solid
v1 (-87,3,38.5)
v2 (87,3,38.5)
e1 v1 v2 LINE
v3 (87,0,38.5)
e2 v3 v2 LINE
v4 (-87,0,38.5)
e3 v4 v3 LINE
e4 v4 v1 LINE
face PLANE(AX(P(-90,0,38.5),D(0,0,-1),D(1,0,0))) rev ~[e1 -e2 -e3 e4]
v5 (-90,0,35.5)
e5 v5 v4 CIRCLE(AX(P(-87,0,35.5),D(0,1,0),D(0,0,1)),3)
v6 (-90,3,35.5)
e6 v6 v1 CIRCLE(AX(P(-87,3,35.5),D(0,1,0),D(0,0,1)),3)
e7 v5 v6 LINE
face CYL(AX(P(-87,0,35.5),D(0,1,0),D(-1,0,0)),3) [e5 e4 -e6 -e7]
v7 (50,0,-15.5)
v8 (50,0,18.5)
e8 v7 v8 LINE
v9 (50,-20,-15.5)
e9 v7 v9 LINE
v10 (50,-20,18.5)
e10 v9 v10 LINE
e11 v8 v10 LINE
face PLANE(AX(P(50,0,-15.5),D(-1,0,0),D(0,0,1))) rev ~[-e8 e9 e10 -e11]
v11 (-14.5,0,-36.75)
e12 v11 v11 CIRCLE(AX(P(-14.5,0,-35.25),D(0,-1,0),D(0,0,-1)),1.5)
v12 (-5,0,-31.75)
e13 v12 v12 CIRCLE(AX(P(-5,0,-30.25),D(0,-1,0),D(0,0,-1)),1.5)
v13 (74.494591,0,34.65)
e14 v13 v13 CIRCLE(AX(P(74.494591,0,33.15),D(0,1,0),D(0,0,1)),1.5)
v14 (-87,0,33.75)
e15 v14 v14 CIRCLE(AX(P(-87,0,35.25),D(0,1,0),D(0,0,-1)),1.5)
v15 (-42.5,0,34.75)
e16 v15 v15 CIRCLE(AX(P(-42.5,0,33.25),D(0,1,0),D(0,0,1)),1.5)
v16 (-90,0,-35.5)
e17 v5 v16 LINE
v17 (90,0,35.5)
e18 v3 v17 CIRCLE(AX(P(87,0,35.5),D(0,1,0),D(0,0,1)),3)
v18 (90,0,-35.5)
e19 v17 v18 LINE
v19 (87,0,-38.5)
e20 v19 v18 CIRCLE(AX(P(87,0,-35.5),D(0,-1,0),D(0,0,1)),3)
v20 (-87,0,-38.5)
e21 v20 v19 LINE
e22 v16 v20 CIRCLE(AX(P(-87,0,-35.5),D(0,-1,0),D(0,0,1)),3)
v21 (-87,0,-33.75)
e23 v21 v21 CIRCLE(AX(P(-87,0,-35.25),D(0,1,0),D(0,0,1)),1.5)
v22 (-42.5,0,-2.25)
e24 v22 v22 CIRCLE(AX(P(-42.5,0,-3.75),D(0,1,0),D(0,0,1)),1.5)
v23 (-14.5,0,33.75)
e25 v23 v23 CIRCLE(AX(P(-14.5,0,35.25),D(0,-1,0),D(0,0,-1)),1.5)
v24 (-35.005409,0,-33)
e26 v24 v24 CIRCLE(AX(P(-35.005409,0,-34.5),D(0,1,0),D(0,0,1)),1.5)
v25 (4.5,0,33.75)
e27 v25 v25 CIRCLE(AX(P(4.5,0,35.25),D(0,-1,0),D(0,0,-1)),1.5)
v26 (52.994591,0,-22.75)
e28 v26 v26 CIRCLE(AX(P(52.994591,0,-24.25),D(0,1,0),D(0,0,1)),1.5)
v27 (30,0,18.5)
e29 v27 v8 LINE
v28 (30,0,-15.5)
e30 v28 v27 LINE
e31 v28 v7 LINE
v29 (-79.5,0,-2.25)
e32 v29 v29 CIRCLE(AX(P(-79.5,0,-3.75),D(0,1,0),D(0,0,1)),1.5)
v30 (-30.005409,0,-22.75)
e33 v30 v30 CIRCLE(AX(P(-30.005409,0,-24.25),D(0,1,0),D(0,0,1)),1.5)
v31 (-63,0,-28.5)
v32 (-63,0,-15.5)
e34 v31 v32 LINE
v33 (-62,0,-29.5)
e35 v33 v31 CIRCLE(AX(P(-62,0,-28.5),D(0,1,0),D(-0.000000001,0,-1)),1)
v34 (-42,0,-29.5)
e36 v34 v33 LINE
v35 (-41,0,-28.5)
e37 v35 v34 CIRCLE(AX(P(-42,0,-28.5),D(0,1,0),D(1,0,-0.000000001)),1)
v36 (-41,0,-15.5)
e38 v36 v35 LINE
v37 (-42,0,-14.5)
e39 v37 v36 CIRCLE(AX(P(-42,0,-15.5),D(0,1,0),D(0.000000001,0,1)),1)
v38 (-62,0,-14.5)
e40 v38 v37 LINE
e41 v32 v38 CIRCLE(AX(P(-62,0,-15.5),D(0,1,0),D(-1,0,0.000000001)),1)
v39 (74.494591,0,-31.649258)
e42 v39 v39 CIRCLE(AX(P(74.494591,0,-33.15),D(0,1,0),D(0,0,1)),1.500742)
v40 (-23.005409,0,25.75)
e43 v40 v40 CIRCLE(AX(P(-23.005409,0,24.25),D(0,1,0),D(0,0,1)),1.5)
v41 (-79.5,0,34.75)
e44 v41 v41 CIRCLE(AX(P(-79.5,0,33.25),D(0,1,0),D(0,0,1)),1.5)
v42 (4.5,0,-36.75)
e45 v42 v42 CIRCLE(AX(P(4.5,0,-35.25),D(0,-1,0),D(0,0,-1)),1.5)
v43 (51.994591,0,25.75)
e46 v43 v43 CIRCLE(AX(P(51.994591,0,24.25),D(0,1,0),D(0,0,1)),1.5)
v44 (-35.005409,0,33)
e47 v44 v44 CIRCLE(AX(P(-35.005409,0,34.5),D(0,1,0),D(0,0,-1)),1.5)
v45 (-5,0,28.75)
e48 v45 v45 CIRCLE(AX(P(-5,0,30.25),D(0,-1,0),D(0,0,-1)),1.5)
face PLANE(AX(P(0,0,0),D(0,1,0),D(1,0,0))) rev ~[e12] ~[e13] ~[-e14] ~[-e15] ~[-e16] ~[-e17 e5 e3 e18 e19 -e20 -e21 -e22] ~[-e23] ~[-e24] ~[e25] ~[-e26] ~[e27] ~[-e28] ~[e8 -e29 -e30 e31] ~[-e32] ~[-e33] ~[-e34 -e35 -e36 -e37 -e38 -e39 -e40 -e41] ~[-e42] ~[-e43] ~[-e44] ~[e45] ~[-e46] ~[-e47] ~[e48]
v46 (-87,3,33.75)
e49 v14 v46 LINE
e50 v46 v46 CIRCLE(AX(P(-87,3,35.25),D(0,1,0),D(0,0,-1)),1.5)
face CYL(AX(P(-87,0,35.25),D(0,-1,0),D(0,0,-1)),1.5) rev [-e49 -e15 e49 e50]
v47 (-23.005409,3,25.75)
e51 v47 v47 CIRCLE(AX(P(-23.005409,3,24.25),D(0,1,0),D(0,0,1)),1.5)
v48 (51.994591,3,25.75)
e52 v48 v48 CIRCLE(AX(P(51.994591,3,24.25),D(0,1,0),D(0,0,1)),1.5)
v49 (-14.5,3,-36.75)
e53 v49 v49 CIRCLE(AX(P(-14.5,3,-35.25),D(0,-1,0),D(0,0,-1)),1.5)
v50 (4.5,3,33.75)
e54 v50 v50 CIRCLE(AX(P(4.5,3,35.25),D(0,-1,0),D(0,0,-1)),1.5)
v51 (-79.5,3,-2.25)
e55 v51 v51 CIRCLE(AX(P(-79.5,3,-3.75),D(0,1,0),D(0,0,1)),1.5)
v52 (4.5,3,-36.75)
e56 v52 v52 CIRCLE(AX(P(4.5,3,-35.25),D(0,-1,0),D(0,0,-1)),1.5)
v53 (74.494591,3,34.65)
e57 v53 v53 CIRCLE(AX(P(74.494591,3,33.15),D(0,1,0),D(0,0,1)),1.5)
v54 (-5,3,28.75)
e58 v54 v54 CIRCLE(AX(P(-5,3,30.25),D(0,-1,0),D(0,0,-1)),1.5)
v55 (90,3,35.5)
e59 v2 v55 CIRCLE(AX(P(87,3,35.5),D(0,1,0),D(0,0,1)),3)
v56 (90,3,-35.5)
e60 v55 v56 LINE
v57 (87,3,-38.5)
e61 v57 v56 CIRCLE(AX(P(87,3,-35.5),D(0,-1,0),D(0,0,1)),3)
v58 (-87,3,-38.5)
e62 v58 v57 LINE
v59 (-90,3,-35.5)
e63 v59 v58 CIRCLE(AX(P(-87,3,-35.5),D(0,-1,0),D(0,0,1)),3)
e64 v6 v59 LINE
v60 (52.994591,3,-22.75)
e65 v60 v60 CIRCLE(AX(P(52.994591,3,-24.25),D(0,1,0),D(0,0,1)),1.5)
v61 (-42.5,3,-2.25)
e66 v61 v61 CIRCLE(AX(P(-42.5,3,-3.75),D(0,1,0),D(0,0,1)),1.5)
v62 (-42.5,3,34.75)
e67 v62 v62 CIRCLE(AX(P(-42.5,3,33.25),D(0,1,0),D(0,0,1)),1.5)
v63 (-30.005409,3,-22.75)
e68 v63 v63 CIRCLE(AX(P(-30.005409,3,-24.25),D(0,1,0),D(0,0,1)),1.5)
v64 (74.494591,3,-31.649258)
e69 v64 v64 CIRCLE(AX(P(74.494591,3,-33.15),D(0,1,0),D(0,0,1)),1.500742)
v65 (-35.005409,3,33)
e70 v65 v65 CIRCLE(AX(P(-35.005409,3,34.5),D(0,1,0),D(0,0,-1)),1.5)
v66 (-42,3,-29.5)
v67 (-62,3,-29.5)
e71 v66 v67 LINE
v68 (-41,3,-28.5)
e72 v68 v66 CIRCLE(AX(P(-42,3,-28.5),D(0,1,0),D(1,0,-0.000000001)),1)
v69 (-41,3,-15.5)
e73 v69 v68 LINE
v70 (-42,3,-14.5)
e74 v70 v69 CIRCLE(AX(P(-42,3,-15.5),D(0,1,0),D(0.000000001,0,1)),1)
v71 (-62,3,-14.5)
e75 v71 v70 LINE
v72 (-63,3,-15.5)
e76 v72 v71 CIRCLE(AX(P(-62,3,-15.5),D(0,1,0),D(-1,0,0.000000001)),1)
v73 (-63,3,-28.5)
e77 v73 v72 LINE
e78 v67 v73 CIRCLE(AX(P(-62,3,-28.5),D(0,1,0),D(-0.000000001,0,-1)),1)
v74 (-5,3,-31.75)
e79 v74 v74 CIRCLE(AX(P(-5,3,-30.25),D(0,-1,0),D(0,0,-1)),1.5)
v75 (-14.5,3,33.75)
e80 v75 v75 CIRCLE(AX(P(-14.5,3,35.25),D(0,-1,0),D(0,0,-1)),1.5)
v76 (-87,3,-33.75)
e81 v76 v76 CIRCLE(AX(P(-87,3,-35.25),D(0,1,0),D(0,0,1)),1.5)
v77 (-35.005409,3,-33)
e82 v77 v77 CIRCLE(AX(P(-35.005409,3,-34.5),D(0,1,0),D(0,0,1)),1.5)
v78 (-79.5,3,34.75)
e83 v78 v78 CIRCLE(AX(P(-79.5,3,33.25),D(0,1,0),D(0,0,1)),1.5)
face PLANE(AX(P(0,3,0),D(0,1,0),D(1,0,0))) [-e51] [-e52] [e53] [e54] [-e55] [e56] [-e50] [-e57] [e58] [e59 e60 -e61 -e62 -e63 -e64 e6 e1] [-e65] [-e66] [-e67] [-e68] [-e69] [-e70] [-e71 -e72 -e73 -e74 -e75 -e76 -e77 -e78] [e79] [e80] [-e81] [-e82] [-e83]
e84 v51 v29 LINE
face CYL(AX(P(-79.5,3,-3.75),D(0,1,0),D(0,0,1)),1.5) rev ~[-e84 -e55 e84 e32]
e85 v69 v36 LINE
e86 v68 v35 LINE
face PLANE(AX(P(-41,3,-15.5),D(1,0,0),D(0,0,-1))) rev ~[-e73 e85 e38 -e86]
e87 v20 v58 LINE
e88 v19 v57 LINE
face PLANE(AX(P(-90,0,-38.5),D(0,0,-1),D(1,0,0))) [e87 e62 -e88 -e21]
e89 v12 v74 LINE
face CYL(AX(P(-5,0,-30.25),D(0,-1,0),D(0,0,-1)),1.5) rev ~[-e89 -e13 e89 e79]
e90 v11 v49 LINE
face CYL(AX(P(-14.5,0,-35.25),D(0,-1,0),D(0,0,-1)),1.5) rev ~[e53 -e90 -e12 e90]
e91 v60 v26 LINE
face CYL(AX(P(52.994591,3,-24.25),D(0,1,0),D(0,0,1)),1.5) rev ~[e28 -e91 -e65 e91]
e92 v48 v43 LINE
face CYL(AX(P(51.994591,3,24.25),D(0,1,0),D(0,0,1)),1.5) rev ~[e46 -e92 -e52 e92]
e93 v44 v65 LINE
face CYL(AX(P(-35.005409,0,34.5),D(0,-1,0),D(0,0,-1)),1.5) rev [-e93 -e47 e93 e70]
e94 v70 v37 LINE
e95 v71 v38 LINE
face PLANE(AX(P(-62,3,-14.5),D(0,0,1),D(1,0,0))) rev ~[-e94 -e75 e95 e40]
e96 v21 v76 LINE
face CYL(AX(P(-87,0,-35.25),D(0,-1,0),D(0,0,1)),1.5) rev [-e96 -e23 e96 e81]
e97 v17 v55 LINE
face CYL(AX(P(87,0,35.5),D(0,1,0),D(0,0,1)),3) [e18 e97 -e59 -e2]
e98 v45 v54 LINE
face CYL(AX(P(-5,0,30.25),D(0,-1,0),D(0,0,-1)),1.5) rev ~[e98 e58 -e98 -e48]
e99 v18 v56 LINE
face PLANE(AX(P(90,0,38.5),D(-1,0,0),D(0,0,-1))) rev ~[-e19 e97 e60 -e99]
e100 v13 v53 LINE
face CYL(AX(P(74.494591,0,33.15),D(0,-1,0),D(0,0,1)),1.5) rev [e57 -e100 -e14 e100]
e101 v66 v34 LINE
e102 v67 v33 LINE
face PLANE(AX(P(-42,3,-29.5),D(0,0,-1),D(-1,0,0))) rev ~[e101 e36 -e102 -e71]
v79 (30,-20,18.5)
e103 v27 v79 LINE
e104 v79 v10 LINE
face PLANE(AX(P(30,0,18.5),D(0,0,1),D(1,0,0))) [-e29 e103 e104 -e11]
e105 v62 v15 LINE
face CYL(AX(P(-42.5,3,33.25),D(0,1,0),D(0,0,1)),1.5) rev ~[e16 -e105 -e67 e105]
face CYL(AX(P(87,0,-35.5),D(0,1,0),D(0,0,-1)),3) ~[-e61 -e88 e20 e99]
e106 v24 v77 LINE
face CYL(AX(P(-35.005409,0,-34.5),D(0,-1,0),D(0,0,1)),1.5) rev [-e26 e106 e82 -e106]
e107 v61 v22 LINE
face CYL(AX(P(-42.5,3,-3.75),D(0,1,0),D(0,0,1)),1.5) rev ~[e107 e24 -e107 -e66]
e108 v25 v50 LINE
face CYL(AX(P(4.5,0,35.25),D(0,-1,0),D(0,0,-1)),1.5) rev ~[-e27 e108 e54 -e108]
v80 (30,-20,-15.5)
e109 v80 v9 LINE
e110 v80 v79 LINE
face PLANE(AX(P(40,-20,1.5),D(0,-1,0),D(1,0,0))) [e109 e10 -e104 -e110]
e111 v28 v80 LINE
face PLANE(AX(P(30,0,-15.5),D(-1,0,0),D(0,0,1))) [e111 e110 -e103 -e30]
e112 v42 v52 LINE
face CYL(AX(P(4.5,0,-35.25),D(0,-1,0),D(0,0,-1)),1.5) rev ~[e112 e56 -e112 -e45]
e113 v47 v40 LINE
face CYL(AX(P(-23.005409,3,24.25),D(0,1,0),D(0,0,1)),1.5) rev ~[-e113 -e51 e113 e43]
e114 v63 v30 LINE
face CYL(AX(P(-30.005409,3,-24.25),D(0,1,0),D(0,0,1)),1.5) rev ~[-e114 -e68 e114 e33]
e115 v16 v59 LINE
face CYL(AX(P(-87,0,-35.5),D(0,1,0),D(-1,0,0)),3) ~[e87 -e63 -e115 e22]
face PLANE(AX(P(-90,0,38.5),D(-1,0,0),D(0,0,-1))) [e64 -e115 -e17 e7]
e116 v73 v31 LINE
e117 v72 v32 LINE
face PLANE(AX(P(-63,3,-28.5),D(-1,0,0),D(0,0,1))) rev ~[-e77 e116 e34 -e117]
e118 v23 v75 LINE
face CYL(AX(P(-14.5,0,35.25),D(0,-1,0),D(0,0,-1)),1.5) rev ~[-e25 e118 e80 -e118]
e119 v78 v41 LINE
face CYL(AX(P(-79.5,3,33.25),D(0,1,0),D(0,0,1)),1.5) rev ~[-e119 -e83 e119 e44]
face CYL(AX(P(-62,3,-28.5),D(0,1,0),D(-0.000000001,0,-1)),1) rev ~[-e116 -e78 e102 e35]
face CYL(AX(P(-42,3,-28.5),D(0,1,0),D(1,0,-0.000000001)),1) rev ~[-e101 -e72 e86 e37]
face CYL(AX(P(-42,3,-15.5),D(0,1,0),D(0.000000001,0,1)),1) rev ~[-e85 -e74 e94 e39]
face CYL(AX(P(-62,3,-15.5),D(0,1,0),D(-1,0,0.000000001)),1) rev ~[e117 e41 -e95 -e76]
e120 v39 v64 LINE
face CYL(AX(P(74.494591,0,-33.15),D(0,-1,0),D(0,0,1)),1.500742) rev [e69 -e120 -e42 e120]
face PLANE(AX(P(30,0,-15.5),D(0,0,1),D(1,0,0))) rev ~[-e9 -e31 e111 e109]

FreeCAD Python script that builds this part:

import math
import FreeCAD as App
import Part
import Sketcher

V = App.Vector


def edges_at(feature, points):
    """Names of the edges that pass closest to the given points."""
    edges = feature.Shape.Edges
    near = lambda p: min(range(len(edges)), key=lambda i: edges[i].distToShape(Part.Vertex(*p))[0])
    return sorted({f"Edge{near(p) + 1}" for p in points})

doc = App.newDocument("Part")
body = doc.addObject("PartDesign::Body", "Body")

# Sketch on XZ plane
sketch1 = body.newObject("Sketcher::SketchObject", "Sketch")
sketch1.AttachmentSupport = (doc.getObject("XZ_Plane"), [""])
sketch1.MapMode = "FlatFace"
sketch1.addGeometry([
    Part.LineSegment(V(-90, -38.5, 0), V(-90, 38.5, 0)),  # 0
    Part.LineSegment(V(-90, 38.5, 0), V(90, 38.5, 0)),  # 1
    Part.LineSegment(V(90, 38.5, 0), V(90, -38.5, 0)),  # 2
    Part.LineSegment(V(90, -38.5, 0), V(-90, -38.5, 0)),  # 3
    Part.Circle(V(-87, 35.2, 0), V(0, 0, 1), 1.5),  # 4
    Part.Circle(V(-35, 34.5, 0), V(0, 0, 1), 1.5),  # 5
    Part.Circle(V(74.5, 33.1, 0), V(0, 0, 1), 1.5),  # 6
    Part.Circle(V(-87, -35.2, 0), V(0, 0, 1), 1.5),  # 7
    Part.Circle(V(-35, -34.5, 0), V(0, 0, 1), 1.5),  # 8
    Part.Circle(V(74.5, -33.1, 0), V(0, 0, 1), 1.5),  # 9
], False)
sketch1.addConstraint([
    Sketcher.Constraint("Coincident", 0, 2, 1, 1),
    Sketcher.Constraint("Coincident", 1, 2, 2, 1),
    Sketcher.Constraint("Coincident", 2, 2, 3, 1),
    Sketcher.Constraint("Coincident", 3, 2, 0, 1),
    Sketcher.Constraint("Vertical", 0),
    Sketcher.Constraint("Horizontal", 1),
    Sketcher.Constraint("Vertical", 2),
    Sketcher.Constraint("Horizontal", 3),
    Sketcher.Constraint("Equal", 4, 5),
    Sketcher.Constraint("Equal", 5, 6),
    Sketcher.Constraint("Equal", 6, 7),
    Sketcher.Constraint("Equal", 7, 8),
    Sketcher.Constraint("Symmetric", 0, 2, 2, 2, -1, 1),
    Sketcher.Constraint("Symmetric", 4, 3, 7, 3, -1),
    Sketcher.Constraint("Symmetric", 5, 3, 8, 3, -1),
    Sketcher.Constraint("Symmetric", 6, 3, 9, 3, -1),
    Sketcher.Constraint("Diameter", 4, 3.0),
    Sketcher.Constraint("DistanceX", 1, 1, 1, 2, 180.0),
    Sketcher.Constraint("DistanceY", 0, 1, 0, 2, 77.0),
    Sketcher.Constraint("DistanceX", 4, 3, -1, 1, 87.0),
    Sketcher.Constraint("DistanceY", 8, 3, 5, 3, 69.0),
    Sketcher.Constraint("DistanceX", 5, 3, 6, 3, 109.5),
    Sketcher.Constraint("DistanceY", 6, 3, 4, 3, 2.1),
    Sketcher.Constraint("DistanceY", 7, 3, 4, 3, 70.5),
    Sketcher.Constraint("Diameter", 9, 3.001485),
    Sketcher.Constraint("DistanceX", 5, 3, -1, 1, 35.005409),
])
pad1 = body.newObject("PartDesign::Pad", "Pad")
pad1.Profile = sketch1
pad1.Length = 3
pad1.Reversed = True
doc.recompute()

fillet = body.newObject("PartDesign::Fillet", "Fillet")
fillet.Base = (pad1, edges_at(pad1, [
    (90, 1.5, 38.5),
    (-90, 1.5, 38.5),
    (-90, 1.5, -38.5),
    (90, 1.5, -38.5),
]))
fillet.Radius = 3

# Sketch on XZ plane
sketch2 = body.newObject("Sketcher::SketchObject", "Sketch001")
sketch2.AttachmentSupport = (doc.getObject("XZ_Plane"), [""])
sketch2.MapMode = "FlatFace"
sketch2.AttachmentOffset = App.Placement(V(0, 0, -3), App.Rotation())
sketch2.addGeometry([
    Part.LineSegment(V(-62, -14.5, 0), V(-42, -14.5, 0)),  # 0
    Part.ArcOfCircle(Part.Circle(V(-42, -15.5, 0), V(0, 0, 1), 1), math.radians(0), math.radians(90)),  # 1
    Part.LineSegment(V(-41, -15.5, 0), V(-41, -28.5, 0)),  # 2
    Part.ArcOfCircle(Part.Circle(V(-42, -28.5, 0), V(0, 0, 1), 1), math.radians(-90), math.radians(0)),  # 3
    Part.LineSegment(V(-42, -29.5, 0), V(-62, -29.5, 0)),  # 4
    Part.ArcOfCircle(Part.Circle(V(-62, -28.5, 0), V(0, 0, 1), 1), math.radians(-180), math.radians(-90)),  # 5
    Part.LineSegment(V(-63, -28.5, 0), V(-63, -15.5, 0)),  # 6
    Part.ArcOfCircle(Part.Circle(V(-62, -15.5, 0), V(0, 0, 1), 1), math.radians(90), math.radians(180)),  # 7
], False)
sketch2.addConstraint([
    Sketcher.Constraint("Tangent", 0, 2, 1, 2),
    Sketcher.Constraint("Tangent", 1, 1, 2, 1),
    Sketcher.Constraint("Tangent", 2, 2, 3, 2),
    Sketcher.Constraint("Tangent", 3, 1, 4, 1),
    Sketcher.Constraint("Tangent", 4, 2, 5, 2),
    Sketcher.Constraint("Tangent", 5, 1, 6, 1),
    Sketcher.Constraint("Tangent", 6, 2, 7, 2),
    Sketcher.Constraint("Tangent", 7, 1, 0, 1),
    Sketcher.Constraint("Horizontal", 0),
    Sketcher.Constraint("Vertical", 2),
    Sketcher.Constraint("Horizontal", 4),
    Sketcher.Constraint("Vertical", 6),
    Sketcher.Constraint("Equal", 1, 3),
    Sketcher.Constraint("Equal", 3, 5),
    Sketcher.Constraint("Equal", 5, 7),
    Sketcher.Constraint("Radius", 1, 1.0),
    Sketcher.Constraint("DistanceX", 0, 1, 0, 2, 20.0),
    Sketcher.Constraint("DistanceY", 2, 2, 2, 1, 13.0),
    Sketcher.Constraint("DistanceX", 1, 3, -1, 1, 42.0),
    Sketcher.Constraint("DistanceY", 1, 3, -1, 1, 15.5),
])
pocket1 = body.newObject("PartDesign::Pocket", "Pocket")
pocket1.Profile = sketch2
pocket1.Length = 3
pocket1.Reversed = True

# Sketch on XZ plane
sketch3 = body.newObject("Sketcher::SketchObject", "Sketch002")
sketch3.AttachmentSupport = (doc.getObject("XZ_Plane"), [""])
sketch3.MapMode = "FlatFace"
sketch3.AttachmentOffset = App.Placement(V(0, 0, -3), App.Rotation())
sketch3.addGeometry([
    Part.Circle(V(-79.5, -3.8, 0), V(0, 0, 1), 1.5),
    Part.Circle(V(-42.5, -3.8, 0), V(0, 0, 1), 1.5),
    Part.Circle(V(-42.5, 33.2, 0), V(0, 0, 1), 1.5),
    Part.Circle(V(-79.5, 33.2, 0), V(0, 0, 1), 1.5),
], False)
sketch3.addConstraint([
    Sketcher.Constraint("Equal", 0, 1),
    Sketcher.Constraint("Equal", 1, 2),
    Sketcher.Constraint("Equal", 2, 3),
    Sketcher.Constraint("Horizontal", 0, 3, 1, 3),
    Sketcher.Constraint("Horizontal", 2, 3, 3, 3),
    Sketcher.Constraint("Vertical", 1, 3, 2, 3),
    Sketcher.Constraint("Vertical", 0, 3, 3, 3),
    Sketcher.Constraint("Diameter", 0, 3.0),
    Sketcher.Constraint("DistanceX", 0, 3, 1, 3, 37.0),
    Sketcher.Constraint("DistanceY", 1, 3, 2, 3, 37.0),
    Sketcher.Constraint("DistanceX", 0, 3, -1, 1, 79.5),
    Sketcher.Constraint("DistanceY", 0, 3, -1, 1, 3.75),
])
pocket2 = body.newObject("PartDesign::Pocket", "Pocket001")
pocket2.Profile = sketch3
pocket2.Length = 3
pocket2.Reversed = True

# Sketch on XZ plane
sketch4 = body.newObject("Sketcher::SketchObject", "Sketch003")
sketch4.AttachmentSupport = (doc.getObject("XZ_Plane"), [""])
sketch4.MapMode = "FlatFace"
sketch4.AttachmentOffset = App.Placement(V(0, 0, -3), App.Rotation())
sketch4.addGeometry([
    Part.Circle(V(-30, -24.2, 0), V(0, 0, 1), 1.5),
    Part.Circle(V(53, -24.2, 0), V(0, 0, 1), 1.5),
    Part.Circle(V(52, 24.2, 0), V(0, 0, 1), 1.5),
    Part.Circle(V(-23, 24.2, 0), V(0, 0, 1), 1.5),
], False)
sketch4.addConstraint([
    Sketcher.Constraint("Equal", 0, 1),
    Sketcher.Constraint("Equal", 1, 2),
    Sketcher.Constraint("Equal", 2, 3),
    Sketcher.Constraint("Horizontal", 0, 3, 1, 3),
    Sketcher.Constraint("Horizontal", 2, 3, 3, 3),
    Sketcher.Constraint("Diameter", 0, 3.0),
    Sketcher.Constraint("DistanceX", 0, 3, 1, 3, 83.0),
    Sketcher.Constraint("DistanceX", 2, 3, 1, 3, 1.0),
    Sketcher.Constraint("DistanceX", 0, 3, 3, 3, 7.0),
    Sketcher.Constraint("DistanceY", 1, 3, 2, 3, 48.5),
    Sketcher.Constraint("DistanceY", 0, 3, -1, 1, 24.25),
    Sketcher.Constraint("DistanceX", 0, 3, -1, 1, 30.005409),
])
pocket3 = body.newObject("PartDesign::Pocket", "Pocket002")
pocket3.Profile = sketch4
pocket3.Length = 3
pocket3.Reversed = True

# Sketch on XZ plane
sketch5 = body.newObject("Sketcher::SketchObject", "Sketch004")
sketch5.AttachmentSupport = (doc.getObject("XZ_Plane"), [""])
sketch5.MapMode = "FlatFace"
sketch5.addGeometry([
    Part.LineSegment(V(30, 18, 0), V(30, -16, 0)),
    Part.LineSegment(V(30, -16, 0), V(50, -16, 0)),
    Part.LineSegment(V(50, -16, 0), V(50, 18, 0)),
    Part.LineSegment(V(50, 18, 0), V(30, 18, 0)),
], False)
sketch5.addConstraint([
    Sketcher.Constraint("Coincident", 0, 2, 1, 1),
    Sketcher.Constraint("Coincident", 1, 2, 2, 1),
    Sketcher.Constraint("Coincident", 2, 2, 3, 1),
    Sketcher.Constraint("Coincident", 3, 2, 0, 1),
    Sketcher.Constraint("Vertical", 0),
    Sketcher.Constraint("Horizontal", 1),
    Sketcher.Constraint("Vertical", 2),
    Sketcher.Constraint("Horizontal", 3),
    Sketcher.Constraint("DistanceX", 1, 1, 1, 2, 20.0),
    Sketcher.Constraint("DistanceY", 0, 2, 0, 1, 34.0),
    Sketcher.Constraint("DistanceX", -1, 1, 0, 2, 30.0),
    Sketcher.Constraint("DistanceY", 0, 2, -1, 1, 15.5),
])
pad2 = body.newObject("PartDesign::Pad", "Pad001")
pad2.Profile = sketch5
pad2.Length = 20

# Sketch on XZ plane
sketch6 = body.newObject("Sketcher::SketchObject", "Sketch005")
sketch6.AttachmentSupport = (doc.getObject("XZ_Plane"), [""])
sketch6.MapMode = "FlatFace"
sketch6.addGeometry([
    Part.Circle(V(-14.5, -35.2, 0), V(0, 0, 1), 1.5),  # 0
    Part.Circle(V(4.5, -35.2, 0), V(0, 0, 1), 1.5),  # 1
    Part.Circle(V(4.5, 35.2, 0), V(0, 0, 1), 1.5),  # 2
    Part.Circle(V(-14.5, 35.2, 0), V(0, 0, 1), 1.5),  # 3
    Part.Circle(V(-5, -30.2, 0), V(0, 0, 1), 1.5),  # 4
    Part.Circle(V(-5, 30.2, 0), V(0, 0, 1), 1.5),  # 5
], False)
sketch6.addConstraint([
    Sketcher.Constraint("Equal", 0, 1),
    Sketcher.Constraint("Equal", 1, 2),
    Sketcher.Constraint("Equal", 2, 3),
    Sketcher.Constraint("Equal", 3, 4),
    Sketcher.Constraint("Equal", 4, 5),
    Sketcher.Constraint("Symmetric", 1, 3, 2, 3, -1),
    Sketcher.Constraint("Symmetric", 0, 3, 3, 3, -1),
    Sketcher.Constraint("Symmetric", 4, 3, 5, 3, -1),
    Sketcher.Constraint("Horizontal", 0, 3, 1, 3),
    Sketcher.Constraint("Diameter", 0, 3.0),
    Sketcher.Constraint("DistanceX", 4, 3, -1, 1, 5.0),
    Sketcher.Constraint("DistanceX", 0, 3, 1, 3, 19.0),
    Sketcher.Constraint("DistanceY", 0, 3, 4, 3, 5.0),
    Sketcher.Constraint("DistanceX", 0, 3, -1, 1, 14.5),
    Sketcher.Constraint("DistanceY", 1, 3, 2, 3, 70.5),
])
pocket4 = body.newObject("PartDesign::Pocket", "Pocket003")
pocket4.Profile = sketch6
pocket4.Length = 3

doc.recompute()
